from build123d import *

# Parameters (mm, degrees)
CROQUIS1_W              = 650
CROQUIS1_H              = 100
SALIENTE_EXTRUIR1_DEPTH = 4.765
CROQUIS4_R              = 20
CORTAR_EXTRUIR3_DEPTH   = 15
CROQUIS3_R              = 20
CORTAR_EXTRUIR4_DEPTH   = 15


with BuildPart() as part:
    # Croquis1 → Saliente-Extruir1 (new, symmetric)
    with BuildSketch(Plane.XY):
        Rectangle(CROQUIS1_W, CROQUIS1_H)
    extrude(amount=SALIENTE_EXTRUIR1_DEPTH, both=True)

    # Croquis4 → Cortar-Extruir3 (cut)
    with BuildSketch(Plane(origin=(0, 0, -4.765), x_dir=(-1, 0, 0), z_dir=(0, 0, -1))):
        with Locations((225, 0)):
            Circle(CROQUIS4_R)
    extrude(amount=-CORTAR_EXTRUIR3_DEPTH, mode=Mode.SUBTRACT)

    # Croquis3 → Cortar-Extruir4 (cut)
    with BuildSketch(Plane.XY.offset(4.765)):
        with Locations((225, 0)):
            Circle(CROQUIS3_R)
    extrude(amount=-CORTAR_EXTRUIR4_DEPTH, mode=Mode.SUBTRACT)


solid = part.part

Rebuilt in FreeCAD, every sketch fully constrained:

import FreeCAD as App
import Part
import Sketcher


def add_polygon(sketch, points):
    """Adds a closed chain of lines whose ends are joined by coincident constraints."""
    first, n = sketch.GeometryCount, len(points)
    for a, b in zip(points, points[1:] + points[:1]):
        sketch.addGeometry(Part.LineSegment(App.Vector(*a, 0), App.Vector(*b, 0)), False)
    for i in range(n):
        sketch.addConstraint(Sketcher.Constraint("Coincident", first + i, 2, first + (i + 1) % n, 1))

doc = App.newDocument("Part")
body = doc.addObject("PartDesign::Body", "Body")

sketch1 = body.newObject("Sketcher::SketchObject", "Sketch")
sketch1.AttachmentSupport = (doc.getObject("XY_Plane"), [""])
sketch1.MapMode = "FlatFace"
add_polygon(sketch1, [(-325, 50), (-325, -50), (325, -50), (325, 50)])
sketch1.addConstraint([
    Sketcher.Constraint("Vertical", 0),
    Sketcher.Constraint("Horizontal", 1),
    Sketcher.Constraint("Vertical", 2),
    Sketcher.Constraint("Horizontal", 3),
    Sketcher.Constraint("Symmetric", 0, 2, 2, 2, -1, 1),
    Sketcher.Constraint("DistanceX", 1, 1, 1, 2, 650.0),
    Sketcher.Constraint("DistanceY", 0, 2, 0, 1, 100.0),
])
pad1 = body.newObject("PartDesign::Pad", "Pad")
pad1.Profile = sketch1
pad1.Length = 9.53
pad1.Midplane = True

sketch2 = body.newObject("Sketcher::SketchObject", "Sketch001")
sketch2.AttachmentSupport = (doc.getObject("XY_Plane"), [""])
sketch2.MapMode = "FlatFace"
sketch2.AttachmentOffset = App.Placement(App.Vector(0, 0, -4.765), App.Rotation())
sketch2.addGeometry(Part.Circle(App.Vector(-225, 0, 0), App.Vector(0, 0, 1), 20), False)
sketch2.addConstraint([
    Sketcher.Constraint("PointOnObject", 0, 3, -1),
    Sketcher.Constraint("Diameter", 0, 40.0),
    Sketcher.Constraint("DistanceX", 0, 3, -1, 1, 225.0),
])
pocket1 = body.newObject("PartDesign::Pocket", "Pocket")
pocket1.Profile = sketch2
pocket1.Length = 15
pocket1.Reversed = True

sketch3 = body.newObject("Sketcher::SketchObject", "Sketch002")
sketch3.AttachmentSupport = (doc.getObject("XY_Plane"), [""])
sketch3.MapMode = "FlatFace"
sketch3.AttachmentOffset = App.Placement(App.Vector(0, 0, 4.765), App.Rotation())
sketch3.addGeometry(Part.Circle(App.Vector(225, 0, 0), App.Vector(0, 0, 1), 20), False)
sketch3.addConstraint([
    Sketcher.Constraint("PointOnObject", 0, 3, -1),
    Sketcher.Constraint("Diameter", 0, 40.0),
    Sketcher.Constraint("DistanceX", -1, 1, 0, 3, 225.0),
])
pocket2 = body.newObject("PartDesign::Pocket", "Pocket001")
pocket2.Profile = sketch3
pocket2.Length = 15

doc.recompute()
